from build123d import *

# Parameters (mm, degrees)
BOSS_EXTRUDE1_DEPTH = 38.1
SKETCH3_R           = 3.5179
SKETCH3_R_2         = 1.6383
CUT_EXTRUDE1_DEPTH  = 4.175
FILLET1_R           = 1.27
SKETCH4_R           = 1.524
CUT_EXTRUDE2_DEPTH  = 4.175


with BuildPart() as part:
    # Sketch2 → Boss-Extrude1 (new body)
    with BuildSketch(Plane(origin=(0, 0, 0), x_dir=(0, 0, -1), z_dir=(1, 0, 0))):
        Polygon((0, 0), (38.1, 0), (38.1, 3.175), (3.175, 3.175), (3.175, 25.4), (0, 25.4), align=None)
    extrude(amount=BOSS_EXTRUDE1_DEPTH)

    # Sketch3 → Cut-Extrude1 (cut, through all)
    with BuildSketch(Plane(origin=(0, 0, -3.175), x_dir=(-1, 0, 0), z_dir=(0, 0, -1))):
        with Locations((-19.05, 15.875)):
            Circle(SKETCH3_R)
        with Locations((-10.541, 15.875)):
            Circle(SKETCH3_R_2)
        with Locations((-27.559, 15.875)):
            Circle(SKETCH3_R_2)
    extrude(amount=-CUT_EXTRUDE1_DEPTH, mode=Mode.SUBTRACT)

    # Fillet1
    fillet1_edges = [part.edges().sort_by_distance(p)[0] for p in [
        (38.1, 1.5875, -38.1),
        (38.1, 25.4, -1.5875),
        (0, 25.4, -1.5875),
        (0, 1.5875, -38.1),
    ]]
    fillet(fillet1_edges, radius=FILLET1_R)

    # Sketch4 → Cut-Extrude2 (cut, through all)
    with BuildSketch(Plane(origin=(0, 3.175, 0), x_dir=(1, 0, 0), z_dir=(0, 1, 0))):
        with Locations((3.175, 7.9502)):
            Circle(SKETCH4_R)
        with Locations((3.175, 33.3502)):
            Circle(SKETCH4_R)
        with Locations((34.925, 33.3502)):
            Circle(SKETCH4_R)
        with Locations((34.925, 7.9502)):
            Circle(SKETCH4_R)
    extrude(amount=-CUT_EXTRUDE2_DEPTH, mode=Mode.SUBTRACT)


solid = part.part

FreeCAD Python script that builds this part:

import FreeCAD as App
import Part
import Sketcher
Q = App.Units.Quantity


def edges_at(feature, points):
    """Names of the edges that pass closest to the given points."""
    edges = feature.Shape.Edges
    near = lambda p: min(range(len(edges)), key=lambda i: edges[i].distToShape(Part.Vertex(*p))[0])
    return sorted({f"Edge{near(p) + 1}" for p in points})


def add_polygon(sketch, points):
    """Adds a closed chain of lines whose ends are joined by coincident constraints."""
    first, n = sketch.GeometryCount, len(points)
    for a, b in zip(points, points[1:] + points[:1]):
        sketch.addGeometry(Part.LineSegment(App.Vector(*a, 0), App.Vector(*b, 0)), False)
    for i in range(n):
        sketch.addConstraint(Sketcher.Constraint("Coincident", first + i, 2, first + (i + 1) % n, 1))

doc = App.newDocument("Part")
body = doc.addObject("PartDesign::Body", "Body")

# Sketch on YZ plane
sketch1 = body.newObject("Sketcher::SketchObject", "Sketch")
sketch1.AttachmentSupport = (doc.getObject("YZ_Plane"), [""])
sketch1.MapMode = "FlatFace"
add_polygon(sketch1, [(0, 0), (0, -38.1), (3.175, -38.1), (3.175, -3.175), (25.4, -3.175), (25.4, 0)])  # lines 0-5
sketch1.addConstraint([
    Sketcher.Constraint("Vertical", 0),
    Sketcher.Constraint("Horizontal", 1),
    Sketcher.Constraint("Vertical", 2),
    Sketcher.Constraint("Horizontal", 3),
    Sketcher.Constraint("Vertical", 4),
    Sketcher.Constraint("Horizontal", 5),
    Sketcher.Constraint("Coincident", 5, 2, -1, 1),
    Sketcher.Constraint("Equal", 1, 4),
    Sketcher.Constraint("DistanceX", 5, 2, 5, 1, Q("1 in")),
    Sketcher.Constraint("DistanceY", 0, 2, 0, 1, Q("1.5 in")),
    Sketcher.Constraint("DistanceX", 1, 1, 1, 2, Q("0.125 in")),
])
pad1 = body.newObject("PartDesign::Pad", "Pad")
pad1.Profile = sketch1
pad1.Length = Q("1.5 in")

# Sketch on XY plane
sketch2 = body.newObject("Sketcher::SketchObject", "Sketch001")
sketch2.AttachmentSupport = (doc.getObject("XY_Plane"), [""])
sketch2.MapMode = "FlatFace"
sketch2.AttachmentOffset = App.Placement(App.Vector(0, 0, -0.125 * 25.4), App.Rotation())
sketch2.addGeometry([
    Part.Circle(App.Vector(19.05, 15.875, 0), App.Vector(0, 0, 1), 3.5179),
    Part.Circle(App.Vector(10.541, 15.875, 0), App.Vector(0, 0, 1), 1.6383),
    Part.Circle(App.Vector(27.559, 15.875, 0), App.Vector(0, 0, 1), 1.6383),
], False)
sketch2.addConstraint([
    Sketcher.Constraint("Equal", 1, 2),
    Sketcher.Constraint("Horizontal", 0, 3, 1, 3),
    Sketcher.Constraint("Horizontal", 1, 3, 2, 3),
    Sketcher.Constraint("Diameter", 0, Q("0.277 in")),
    Sketcher.Constraint("Diameter", 1, Q("0.129 in")),
    Sketcher.Constraint("DistanceX", -1, 1, 0, 3, Q("0.75 in")),
    Sketcher.Constraint("DistanceX", 1, 3, 2, 3, Q("0.67 in")),
    Sketcher.Constraint("DistanceY", -1, 1, 0, 3, Q("0.625 in")),
    Sketcher.Constraint("DistanceX", -1, 1, 1, 3, Q("0.415 in")),
])
pocket1 = body.newObject("PartDesign::Pocket", "Pocket")
pocket1.Profile = sketch2
pocket1.Type = "ThroughAll"
pocket1.Reversed = True
doc.recompute()

fillet = body.newObject("PartDesign::Fillet", "Fillet")
fillet.Base = (pocket1, edges_at(pocket1, [
    (38.1, 1.587, -38.1),
    (38.1, 25.4, -1.587),
    (0, 25.4, -1.587),
    (0, 1.587, -38.1),
]))
fillet.Radius = Q("0.05 in")

# Sketch on XZ plane
sketch3 = body.newObject("Sketcher::SketchObject", "Sketch002")
sketch3.AttachmentSupport = (doc.getObject("XZ_Plane"), [""])
sketch3.MapMode = "FlatFace"
sketch3.AttachmentOffset = App.Placement(App.Vector(0, 0, -0.125 * 25.4), App.Rotation())
sketch3.addGeometry([
    Part.Circle(App.Vector(3.175, -7.9502, 0), App.Vector(0, 0, 1), 1.524),
    Part.Circle(App.Vector(3.175, -33.3502, 0), App.Vector(0, 0, 1), 1.524),
    Part.Circle(App.Vector(34.925, -33.3502, 0), App.Vector(0, 0, 1), 1.524),
    Part.Circle(App.Vector(34.925, -7.9502, 0), App.Vector(0, 0, 1), 1.524),
], False)
sketch3.addConstraint([
    Sketcher.Constraint("Equal", 0, 1),
    Sketcher.Constraint("Equal", 1, 2),
    Sketcher.Constraint("Equal", 2, 3),
    Sketcher.Constraint("Horizontal", 1, 3, 2, 3),
    Sketcher.Constraint("Horizontal", 0, 3, 3, 3),
    Sketcher.Constraint("Vertical", 0, 3, 1, 3),
    Sketcher.Constraint("Vertical", 2, 3, 3, 3),
    Sketcher.Constraint("Diameter", 0, Q("0.12 in")),
    Sketcher.Constraint("DistanceY", 1, 3, 0, 3, Q("1 in")),
    Sketcher.Constraint("DistanceX", 1, 3, 2, 3, Q("1.25 in")),
    Sketcher.Constraint("DistanceX", -1, 1, 0, 3, Q("0.125 in")),
    Sketcher.Constraint("DistanceY", 0, 3, -1, 1, Q("0.313 in")),
])
pocket2 = body.newObject("PartDesign::Pocket", "Pocket001")
pocket2.Profile = sketch3
pocket2.Type = "ThroughAll"
pocket2.Reversed = True

doc.recompute()
